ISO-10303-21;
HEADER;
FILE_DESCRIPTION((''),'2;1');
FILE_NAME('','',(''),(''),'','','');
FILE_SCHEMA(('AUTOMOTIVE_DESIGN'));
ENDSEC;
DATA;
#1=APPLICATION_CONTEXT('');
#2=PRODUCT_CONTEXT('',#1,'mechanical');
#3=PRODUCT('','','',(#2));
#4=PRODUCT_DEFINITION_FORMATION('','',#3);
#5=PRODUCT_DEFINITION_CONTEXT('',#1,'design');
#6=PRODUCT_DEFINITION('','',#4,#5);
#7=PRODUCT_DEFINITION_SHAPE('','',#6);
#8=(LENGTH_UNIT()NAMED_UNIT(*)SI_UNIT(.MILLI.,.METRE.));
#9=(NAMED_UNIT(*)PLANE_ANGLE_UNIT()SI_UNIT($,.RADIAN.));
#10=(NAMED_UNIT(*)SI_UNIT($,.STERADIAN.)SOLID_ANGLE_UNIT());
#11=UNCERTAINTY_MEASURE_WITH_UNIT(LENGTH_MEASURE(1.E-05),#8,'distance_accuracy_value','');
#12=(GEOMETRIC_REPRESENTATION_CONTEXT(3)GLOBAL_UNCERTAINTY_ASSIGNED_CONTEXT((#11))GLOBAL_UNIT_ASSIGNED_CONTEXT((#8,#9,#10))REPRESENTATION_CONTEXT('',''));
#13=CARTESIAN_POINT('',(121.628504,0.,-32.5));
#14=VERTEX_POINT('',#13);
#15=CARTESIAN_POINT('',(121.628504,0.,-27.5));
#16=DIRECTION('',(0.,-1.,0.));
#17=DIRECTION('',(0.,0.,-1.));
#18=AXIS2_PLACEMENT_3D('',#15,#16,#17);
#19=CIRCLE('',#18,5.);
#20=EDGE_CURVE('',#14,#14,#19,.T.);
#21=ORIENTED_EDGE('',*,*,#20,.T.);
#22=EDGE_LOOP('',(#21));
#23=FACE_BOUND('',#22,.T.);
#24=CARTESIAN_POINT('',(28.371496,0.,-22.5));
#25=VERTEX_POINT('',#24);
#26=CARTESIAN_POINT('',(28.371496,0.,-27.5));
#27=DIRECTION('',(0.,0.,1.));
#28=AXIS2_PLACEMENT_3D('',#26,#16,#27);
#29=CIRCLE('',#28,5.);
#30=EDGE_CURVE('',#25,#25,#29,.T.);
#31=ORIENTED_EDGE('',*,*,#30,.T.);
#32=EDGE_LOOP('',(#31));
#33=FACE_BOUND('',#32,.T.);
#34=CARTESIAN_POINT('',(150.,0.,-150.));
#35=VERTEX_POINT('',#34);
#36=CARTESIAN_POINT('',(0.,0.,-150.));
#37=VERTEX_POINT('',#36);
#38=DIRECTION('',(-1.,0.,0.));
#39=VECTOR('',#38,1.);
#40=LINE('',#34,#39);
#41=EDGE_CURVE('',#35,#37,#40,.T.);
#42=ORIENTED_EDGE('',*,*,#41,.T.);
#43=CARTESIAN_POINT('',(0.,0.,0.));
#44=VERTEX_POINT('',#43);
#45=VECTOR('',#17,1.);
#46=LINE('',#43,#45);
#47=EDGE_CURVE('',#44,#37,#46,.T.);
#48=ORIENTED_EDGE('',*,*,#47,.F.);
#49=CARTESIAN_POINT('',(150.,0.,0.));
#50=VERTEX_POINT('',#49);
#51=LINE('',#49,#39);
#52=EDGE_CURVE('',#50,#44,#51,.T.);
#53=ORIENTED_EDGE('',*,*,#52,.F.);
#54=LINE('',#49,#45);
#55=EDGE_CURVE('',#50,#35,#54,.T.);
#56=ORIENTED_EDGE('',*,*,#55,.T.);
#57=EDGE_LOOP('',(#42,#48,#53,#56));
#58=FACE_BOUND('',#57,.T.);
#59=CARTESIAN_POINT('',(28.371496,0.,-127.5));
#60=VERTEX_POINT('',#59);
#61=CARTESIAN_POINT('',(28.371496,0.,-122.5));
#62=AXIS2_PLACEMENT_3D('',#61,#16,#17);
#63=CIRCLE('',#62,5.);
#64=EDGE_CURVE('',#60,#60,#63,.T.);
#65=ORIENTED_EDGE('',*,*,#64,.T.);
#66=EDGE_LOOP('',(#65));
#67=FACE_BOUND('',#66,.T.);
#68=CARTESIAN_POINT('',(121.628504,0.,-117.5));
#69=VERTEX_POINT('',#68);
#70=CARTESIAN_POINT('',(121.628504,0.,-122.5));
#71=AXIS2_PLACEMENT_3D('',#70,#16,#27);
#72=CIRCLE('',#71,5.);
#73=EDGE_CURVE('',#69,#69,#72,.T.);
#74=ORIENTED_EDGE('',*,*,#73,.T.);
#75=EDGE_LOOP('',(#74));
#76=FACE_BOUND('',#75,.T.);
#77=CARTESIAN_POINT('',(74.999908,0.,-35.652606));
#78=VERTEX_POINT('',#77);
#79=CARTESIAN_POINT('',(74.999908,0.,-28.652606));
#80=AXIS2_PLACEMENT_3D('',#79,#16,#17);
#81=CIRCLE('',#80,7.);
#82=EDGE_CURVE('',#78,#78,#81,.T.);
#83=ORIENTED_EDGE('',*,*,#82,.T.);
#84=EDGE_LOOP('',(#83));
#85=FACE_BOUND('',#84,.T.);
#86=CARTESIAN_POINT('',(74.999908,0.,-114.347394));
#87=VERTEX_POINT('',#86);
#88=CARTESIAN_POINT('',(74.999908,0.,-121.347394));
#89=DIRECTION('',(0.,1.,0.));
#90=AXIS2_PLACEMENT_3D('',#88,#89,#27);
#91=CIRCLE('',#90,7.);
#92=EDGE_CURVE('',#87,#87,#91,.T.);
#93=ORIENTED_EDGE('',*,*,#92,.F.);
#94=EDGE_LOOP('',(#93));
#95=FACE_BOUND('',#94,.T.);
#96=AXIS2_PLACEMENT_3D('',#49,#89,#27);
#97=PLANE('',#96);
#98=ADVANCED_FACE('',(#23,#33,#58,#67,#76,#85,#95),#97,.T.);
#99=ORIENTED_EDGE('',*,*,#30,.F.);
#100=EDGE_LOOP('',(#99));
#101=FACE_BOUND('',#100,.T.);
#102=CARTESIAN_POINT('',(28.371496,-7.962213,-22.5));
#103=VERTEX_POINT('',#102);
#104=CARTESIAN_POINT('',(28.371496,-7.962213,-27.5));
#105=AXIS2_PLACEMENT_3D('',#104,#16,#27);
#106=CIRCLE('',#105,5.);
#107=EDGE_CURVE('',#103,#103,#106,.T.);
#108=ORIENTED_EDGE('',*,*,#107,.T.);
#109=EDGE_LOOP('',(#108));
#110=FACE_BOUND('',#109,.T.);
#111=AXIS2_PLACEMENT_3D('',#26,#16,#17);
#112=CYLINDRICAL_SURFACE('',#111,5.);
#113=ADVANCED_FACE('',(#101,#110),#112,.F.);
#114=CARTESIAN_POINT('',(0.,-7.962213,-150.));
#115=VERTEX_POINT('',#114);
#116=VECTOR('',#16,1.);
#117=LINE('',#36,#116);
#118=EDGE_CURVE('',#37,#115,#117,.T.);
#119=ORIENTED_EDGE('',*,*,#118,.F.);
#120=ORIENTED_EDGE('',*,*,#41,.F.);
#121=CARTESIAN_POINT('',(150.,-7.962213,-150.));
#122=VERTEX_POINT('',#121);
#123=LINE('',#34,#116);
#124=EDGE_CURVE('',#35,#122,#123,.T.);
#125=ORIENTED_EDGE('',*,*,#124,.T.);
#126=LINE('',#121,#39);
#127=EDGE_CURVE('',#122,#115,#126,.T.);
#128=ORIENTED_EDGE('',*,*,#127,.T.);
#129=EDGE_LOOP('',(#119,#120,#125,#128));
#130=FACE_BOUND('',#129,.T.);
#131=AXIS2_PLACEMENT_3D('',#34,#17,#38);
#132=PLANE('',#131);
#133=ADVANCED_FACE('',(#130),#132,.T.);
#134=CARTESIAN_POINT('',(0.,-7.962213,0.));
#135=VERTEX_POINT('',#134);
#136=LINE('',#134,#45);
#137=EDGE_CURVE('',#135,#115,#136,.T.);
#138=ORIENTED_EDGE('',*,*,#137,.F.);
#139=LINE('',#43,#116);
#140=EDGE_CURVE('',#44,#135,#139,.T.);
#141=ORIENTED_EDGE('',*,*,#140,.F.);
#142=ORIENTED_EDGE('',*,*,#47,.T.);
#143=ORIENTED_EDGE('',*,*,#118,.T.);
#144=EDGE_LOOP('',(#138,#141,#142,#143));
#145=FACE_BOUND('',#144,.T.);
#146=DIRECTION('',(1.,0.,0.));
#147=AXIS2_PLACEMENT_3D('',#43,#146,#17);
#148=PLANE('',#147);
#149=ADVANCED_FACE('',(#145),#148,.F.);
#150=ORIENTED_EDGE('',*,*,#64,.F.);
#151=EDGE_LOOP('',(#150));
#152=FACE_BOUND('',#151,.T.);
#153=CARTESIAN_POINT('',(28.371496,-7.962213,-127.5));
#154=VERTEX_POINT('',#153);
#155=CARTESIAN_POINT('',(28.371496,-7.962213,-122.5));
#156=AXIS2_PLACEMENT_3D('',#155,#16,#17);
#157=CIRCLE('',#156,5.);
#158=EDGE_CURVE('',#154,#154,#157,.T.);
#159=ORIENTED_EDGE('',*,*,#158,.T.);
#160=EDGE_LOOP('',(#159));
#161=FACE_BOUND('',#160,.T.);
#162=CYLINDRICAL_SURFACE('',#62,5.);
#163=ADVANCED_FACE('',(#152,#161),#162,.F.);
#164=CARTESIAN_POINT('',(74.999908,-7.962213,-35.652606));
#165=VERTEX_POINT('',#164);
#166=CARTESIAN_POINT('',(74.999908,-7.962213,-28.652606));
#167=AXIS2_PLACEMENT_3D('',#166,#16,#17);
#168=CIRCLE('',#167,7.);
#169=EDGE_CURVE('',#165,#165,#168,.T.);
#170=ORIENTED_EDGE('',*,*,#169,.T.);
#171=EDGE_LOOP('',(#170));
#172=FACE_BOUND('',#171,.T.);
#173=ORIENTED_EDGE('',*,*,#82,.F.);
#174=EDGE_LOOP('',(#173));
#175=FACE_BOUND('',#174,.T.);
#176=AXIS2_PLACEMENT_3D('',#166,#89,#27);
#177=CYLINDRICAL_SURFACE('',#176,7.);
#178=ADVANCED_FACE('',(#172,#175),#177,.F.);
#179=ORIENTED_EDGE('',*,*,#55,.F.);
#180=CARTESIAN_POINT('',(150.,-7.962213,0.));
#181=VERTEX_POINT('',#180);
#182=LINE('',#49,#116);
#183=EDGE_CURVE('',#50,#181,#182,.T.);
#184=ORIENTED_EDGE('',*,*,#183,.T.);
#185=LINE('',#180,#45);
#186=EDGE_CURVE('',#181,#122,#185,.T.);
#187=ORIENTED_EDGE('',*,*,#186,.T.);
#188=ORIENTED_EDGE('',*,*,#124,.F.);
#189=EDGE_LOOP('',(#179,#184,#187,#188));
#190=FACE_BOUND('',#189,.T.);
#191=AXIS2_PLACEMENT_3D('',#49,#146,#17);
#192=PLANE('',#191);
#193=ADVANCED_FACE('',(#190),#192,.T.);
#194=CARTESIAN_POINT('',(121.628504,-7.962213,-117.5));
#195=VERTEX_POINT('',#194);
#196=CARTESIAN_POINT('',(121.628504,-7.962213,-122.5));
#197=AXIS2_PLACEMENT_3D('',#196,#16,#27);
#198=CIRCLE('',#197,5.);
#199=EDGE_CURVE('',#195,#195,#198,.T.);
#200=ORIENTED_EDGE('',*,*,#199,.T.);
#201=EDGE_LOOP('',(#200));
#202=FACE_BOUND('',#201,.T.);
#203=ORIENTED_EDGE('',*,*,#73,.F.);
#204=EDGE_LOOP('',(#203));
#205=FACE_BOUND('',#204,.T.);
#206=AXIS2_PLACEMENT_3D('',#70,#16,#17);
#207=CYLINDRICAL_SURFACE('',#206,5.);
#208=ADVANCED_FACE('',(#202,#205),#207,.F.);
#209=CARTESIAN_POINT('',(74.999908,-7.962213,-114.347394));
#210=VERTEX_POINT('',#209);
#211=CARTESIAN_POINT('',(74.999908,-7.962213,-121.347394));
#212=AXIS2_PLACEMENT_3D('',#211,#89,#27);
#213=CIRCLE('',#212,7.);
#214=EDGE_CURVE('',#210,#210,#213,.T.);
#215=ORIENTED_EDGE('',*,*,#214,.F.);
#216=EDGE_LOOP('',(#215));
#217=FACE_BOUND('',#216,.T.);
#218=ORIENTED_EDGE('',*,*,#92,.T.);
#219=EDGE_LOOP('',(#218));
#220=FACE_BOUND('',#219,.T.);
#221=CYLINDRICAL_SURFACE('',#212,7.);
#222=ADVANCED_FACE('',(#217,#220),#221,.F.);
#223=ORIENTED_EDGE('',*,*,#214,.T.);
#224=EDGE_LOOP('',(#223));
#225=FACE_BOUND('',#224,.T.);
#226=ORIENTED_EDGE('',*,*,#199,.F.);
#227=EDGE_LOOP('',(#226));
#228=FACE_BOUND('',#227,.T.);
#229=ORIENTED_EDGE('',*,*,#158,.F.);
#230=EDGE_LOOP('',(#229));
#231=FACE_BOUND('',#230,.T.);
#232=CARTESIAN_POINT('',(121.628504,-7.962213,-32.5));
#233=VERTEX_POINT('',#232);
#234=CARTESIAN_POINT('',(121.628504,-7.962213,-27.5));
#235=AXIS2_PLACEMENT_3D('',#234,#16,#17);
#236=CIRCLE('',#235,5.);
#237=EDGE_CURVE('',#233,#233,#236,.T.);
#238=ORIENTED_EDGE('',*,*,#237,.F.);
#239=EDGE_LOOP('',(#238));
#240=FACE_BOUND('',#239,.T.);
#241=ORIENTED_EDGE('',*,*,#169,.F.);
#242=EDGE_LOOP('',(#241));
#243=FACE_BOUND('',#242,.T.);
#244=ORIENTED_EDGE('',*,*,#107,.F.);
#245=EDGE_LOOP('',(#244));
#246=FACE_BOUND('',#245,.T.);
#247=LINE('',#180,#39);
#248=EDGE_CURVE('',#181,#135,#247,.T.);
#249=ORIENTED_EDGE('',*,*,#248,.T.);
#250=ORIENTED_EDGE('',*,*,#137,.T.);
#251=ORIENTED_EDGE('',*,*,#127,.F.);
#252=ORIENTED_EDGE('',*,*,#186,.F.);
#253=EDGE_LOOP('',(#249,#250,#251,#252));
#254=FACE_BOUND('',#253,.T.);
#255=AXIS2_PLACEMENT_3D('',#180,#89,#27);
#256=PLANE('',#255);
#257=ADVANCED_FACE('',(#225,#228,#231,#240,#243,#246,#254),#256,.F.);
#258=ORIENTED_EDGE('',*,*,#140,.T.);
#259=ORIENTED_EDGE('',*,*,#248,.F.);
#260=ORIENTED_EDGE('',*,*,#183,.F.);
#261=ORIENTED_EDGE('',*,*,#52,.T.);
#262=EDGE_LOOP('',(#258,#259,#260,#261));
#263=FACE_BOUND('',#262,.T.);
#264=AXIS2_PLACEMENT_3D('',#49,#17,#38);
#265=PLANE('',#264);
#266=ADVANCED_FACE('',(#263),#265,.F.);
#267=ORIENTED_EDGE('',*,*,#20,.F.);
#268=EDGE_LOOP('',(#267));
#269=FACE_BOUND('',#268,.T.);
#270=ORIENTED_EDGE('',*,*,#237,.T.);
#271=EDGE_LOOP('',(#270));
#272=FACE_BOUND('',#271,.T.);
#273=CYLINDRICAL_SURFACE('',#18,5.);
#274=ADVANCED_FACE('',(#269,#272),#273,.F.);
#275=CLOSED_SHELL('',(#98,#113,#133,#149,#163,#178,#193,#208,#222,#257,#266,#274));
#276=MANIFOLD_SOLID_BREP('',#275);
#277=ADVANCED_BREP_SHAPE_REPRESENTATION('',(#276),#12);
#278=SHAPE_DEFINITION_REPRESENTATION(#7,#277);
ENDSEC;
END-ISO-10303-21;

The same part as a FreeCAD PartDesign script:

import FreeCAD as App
import Part
import Sketcher
Q = App.Units.Quantity


def add_polygon(sketch, points):
    """Adds a closed chain of lines whose ends are joined by coincident constraints."""
    first, n = sketch.GeometryCount, len(points)
    for a, b in zip(points, points[1:] + points[:1]):
        sketch.addGeometry(Part.LineSegment(App.Vector(*a, 0), App.Vector(*b, 0)), False)
    for i in range(n):
        sketch.addConstraint(Sketcher.Constraint("Coincident", first + i, 2, first + (i + 1) % n, 1))

doc = App.newDocument("Part")
body = doc.addObject("PartDesign::Body", "Body")

# Sketch on YZ plane
sketch1 = body.newObject("Sketcher::SketchObject", "Sketch")
sketch1.AttachmentSupport = (doc.getObject("YZ_Plane"), [""])
sketch1.MapMode = "FlatFace"
add_polygon(sketch1, [(0, 0), (-8, 0), (-8, -150), (0, -150)])  # lines 0-3
sketch1.addConstraint(Sketcher.Constraint("Horizontal", 0))
sketch1.addConstraint(Sketcher.Constraint("Vertical", 1))
sketch1.addConstraint(Sketcher.Constraint("Horizontal", 2))
sketch1.addConstraint(Sketcher.Constraint("Vertical", 3))
sketch1.addConstraint(Sketcher.Constraint("Coincident", 3, 2, -1, 1))
sketch1.addConstraint(Sketcher.Constraint("DistanceY", 1, 2, 1, 1, Q("150 mm")))
sketch1.addConstraint(Sketcher.Constraint("DistanceX", 0, 2, 0, 1, Q("7.962213 mm")))
pad1 = body.newObject("PartDesign::Pad", "Pad")
pad1.Profile = sketch1
pad1.Length = 150

# Sketch on XZ plane
sketch2 = body.newObject("Sketcher::SketchObject", "Sketch001")
sketch2.AttachmentSupport = (doc.getObject("XZ_Plane"), [""])
sketch2.MapMode = "FlatFace"
sketch2.addGeometry(Part.Circle(App.Vector(75, -121, 0), App.Vector(0, 0, 1), 7), False)
sketch2.addGeometry(Part.Circle(App.Vector(75, -29, 0), App.Vector(0, 0, 1), 7), False)
sketch2.addConstraint(Sketcher.Constraint("Equal", 0, 1))
sketch2.addConstraint(Sketcher.Constraint("Vertical", 0, 3, 1, 3))
sketch2.addConstraint(Sketcher.Constraint("Diameter", 0, Q("14 mm")))
sketch2.addConstraint(Sketcher.Constraint("DistanceX", -1, 1, 0, 3, Q("74.999908 mm")))
sketch2.addConstraint(Sketcher.Constraint("DistanceY", 0, 3, -1, 1, Q("121.347394 mm")))
sketch2.addConstraint(Sketcher.Constraint("DistanceY", 1, 3, -1, 1, Q("28.652606 mm")))
pocket1 = body.newObject("PartDesign::Pocket", "Pocket")
pocket1.Profile = sketch2
pocket1.Type = "ThroughAll"
pocket1.Reversed = True

# Sketch on XZ plane
sketch3 = body.newObject("Sketcher::SketchObject", "Sketch002")
sketch3.AttachmentSupport = (doc.getObject("XZ_Plane"), [""])
sketch3.MapMode = "FlatFace"
sketch3.AttachmentOffset = App.Placement(App.Vector(0, 0, 7.962213), App.Rotation())
sketch3.addGeometry(Part.Circle(App.Vector(28, -122, 0), App.Vector(0, 0, 1), 5), False)
sketch3.addGeometry(Part.Circle(App.Vector(28, -28, 0), App.Vector(0, 0, 1), 5), False)
sketch3.addGeometry(Part.Circle(App.Vector(122, -28, 0), App.Vector(0, 0, 1), 5), False)
sketch3.addGeometry(Part.Circle(App.Vector(122, -122, 0), App.Vector(0, 0, 1), 5), False)
sketch3.addConstraint(Sketcher.Constraint("Equal", 0, 1))
sketch3.addConstraint(Sketcher.Constraint("Equal", 1, 2))
sketch3.addConstraint(Sketcher.Constraint("Equal", 2, 3))
sketch3.addConstraint(Sketcher.Constraint("Horizontal", 1, 3, 2, 3))
sketch3.addConstraint(Sketcher.Constraint("Horizontal", 0, 3, 3, 3))
sketch3.addConstraint(Sketcher.Constraint("Vertical", 0, 3, 1, 3))
sketch3.addConstraint(Sketcher.Constraint("Vertical", 2, 3, 3, 3))
sketch3.addConstraint(Sketcher.Constraint("Diameter", 0, Q("10 mm")))
sketch3.addConstraint(Sketcher.Constraint("DistanceY", 0, 3, 1, 3, Q("95 mm")))
sketch3.addConstraint(Sketcher.Constraint("DistanceY", 0, 3, -1, 1, Q("122.5 mm")))
sketch3.addConstraint(Sketcher.Constraint("DistanceX", -1, 1, 0, 3, Q("28.371496 mm")))
sketch3.addConstraint(Sketcher.Constraint("DistanceX", -1, 1, 2, 3, Q("121.628504 mm")))
pocket2 = body.newObject("PartDesign::Pocket", "Pocket001")
pocket2.Profile = sketch3
pocket2.Type = "ThroughAll"

doc.recompute()
